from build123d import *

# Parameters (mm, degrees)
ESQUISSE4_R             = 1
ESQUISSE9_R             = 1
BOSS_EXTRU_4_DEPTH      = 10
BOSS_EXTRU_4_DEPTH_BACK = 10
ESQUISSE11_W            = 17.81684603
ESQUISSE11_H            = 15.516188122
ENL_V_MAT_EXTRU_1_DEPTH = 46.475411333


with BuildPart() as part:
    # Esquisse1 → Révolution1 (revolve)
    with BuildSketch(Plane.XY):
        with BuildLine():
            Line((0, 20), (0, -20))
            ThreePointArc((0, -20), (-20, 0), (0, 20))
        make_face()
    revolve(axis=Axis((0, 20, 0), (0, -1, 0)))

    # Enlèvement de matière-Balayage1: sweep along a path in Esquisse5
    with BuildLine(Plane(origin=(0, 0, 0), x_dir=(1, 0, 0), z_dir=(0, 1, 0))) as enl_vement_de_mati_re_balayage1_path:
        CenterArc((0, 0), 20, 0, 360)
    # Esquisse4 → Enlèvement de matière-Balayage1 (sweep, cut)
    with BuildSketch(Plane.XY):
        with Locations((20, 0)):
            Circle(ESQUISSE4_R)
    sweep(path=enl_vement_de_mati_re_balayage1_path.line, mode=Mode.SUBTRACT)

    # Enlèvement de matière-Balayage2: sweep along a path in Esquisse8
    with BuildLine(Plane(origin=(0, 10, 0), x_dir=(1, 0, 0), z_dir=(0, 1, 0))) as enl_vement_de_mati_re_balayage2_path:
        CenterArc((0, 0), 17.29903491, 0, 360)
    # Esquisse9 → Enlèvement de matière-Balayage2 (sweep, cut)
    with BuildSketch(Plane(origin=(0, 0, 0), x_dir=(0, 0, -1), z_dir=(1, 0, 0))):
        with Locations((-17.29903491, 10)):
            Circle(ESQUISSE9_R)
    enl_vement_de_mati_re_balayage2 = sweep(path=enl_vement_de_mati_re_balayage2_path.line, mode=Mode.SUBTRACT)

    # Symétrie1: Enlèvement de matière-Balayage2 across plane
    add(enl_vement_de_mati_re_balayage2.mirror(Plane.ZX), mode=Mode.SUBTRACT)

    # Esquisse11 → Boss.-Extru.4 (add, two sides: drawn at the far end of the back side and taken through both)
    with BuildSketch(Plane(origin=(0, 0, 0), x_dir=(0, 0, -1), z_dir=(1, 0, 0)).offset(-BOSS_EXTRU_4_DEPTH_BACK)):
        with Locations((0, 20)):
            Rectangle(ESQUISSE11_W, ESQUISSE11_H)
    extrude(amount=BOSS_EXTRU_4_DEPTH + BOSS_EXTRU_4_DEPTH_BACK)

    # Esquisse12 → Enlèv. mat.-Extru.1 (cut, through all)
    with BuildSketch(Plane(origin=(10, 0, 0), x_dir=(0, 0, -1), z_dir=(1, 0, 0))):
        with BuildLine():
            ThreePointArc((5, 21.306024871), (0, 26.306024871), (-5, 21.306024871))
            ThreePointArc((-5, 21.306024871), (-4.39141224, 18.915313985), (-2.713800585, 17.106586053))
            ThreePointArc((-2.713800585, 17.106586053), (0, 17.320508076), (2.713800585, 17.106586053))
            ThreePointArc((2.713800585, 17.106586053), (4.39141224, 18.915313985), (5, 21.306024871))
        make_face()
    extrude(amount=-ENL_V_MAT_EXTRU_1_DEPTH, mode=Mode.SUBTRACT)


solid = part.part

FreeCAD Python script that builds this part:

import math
import FreeCAD as App
import Part
import Sketcher

V = App.Vector

doc = App.newDocument("Part")
body = doc.addObject("PartDesign::Body", "Body")

# Sketch on XY plane
sketch1 = body.newObject("Sketcher::SketchObject", "Sketch")
sketch1.AttachmentSupport = (doc.getObject("XY_Plane"), [""])
sketch1.MapMode = "FlatFace"
sketch1.addGeometry(Part.LineSegment(V(0, -20, 0), V(0, 20, 0)), False)
sketch1.addGeometry(Part.ArcOfCircle(Part.Circle(V(0, 0, 0), V(0, 0, 1), 20), math.radians(90), math.radians(270)), False)
sketch1.addConstraint(Sketcher.Constraint("Coincident", 0, 1, 1, 2))
sketch1.addConstraint(Sketcher.Constraint("Coincident", 1, 1, 0, 2))
sketch1.addConstraint(Sketcher.Constraint("Vertical", 0))
sketch1.addConstraint(Sketcher.Constraint("Coincident", 1, 3, -1, 1))
sketch1.addConstraint(Sketcher.Constraint("PointOnObject", 0, 1, -2))
sketch1.addConstraint(Sketcher.Constraint("Radius", 1, 20.0))
revolution = body.newObject("PartDesign::Revolution", "Revolution")
revolution.Profile = sketch1
revolution.ReferenceAxis = (sketch1, ["V_Axis"])
revolution.Angle = 360

# Sketch on XY plane
sketch2 = body.newObject("Sketcher::SketchObject", "Sketch001")
sketch2.AttachmentSupport = (doc.getObject("XY_Plane"), [""])
sketch2.MapMode = "FlatFace"
sketch2.addGeometry(Part.Circle(V(20, 0, 0), V(0, 0, 1), 1), False)
sketch2.addConstraint(Sketcher.Constraint("PointOnObject", 0, 3, -1))
sketch2.addConstraint(Sketcher.Constraint("Diameter", 0, 2.0))
sketch2.addConstraint(Sketcher.Constraint("DistanceX", -1, 1, 0, 3, 20.0))

# Sketch on XZ plane
sketch3 = body.newObject("Sketcher::SketchObject", "Sketch002")
sketch3.AttachmentSupport = (doc.getObject("XZ_Plane"), [""])
sketch3.MapMode = "FlatFace"
sketch3.addGeometry(Part.Circle(V(0, 0, 0), V(0, 0, 1), 20), False)
sketch3.addConstraint(Sketcher.Constraint("Coincident", 0, 3, -1, 1))
sketch3.addConstraint(Sketcher.Constraint("Diameter", 0, 40.0))
doc.recompute()

subtractivepipe = body.newObject("PartDesign::SubtractivePipe", "SubtractivePipe")
subtractivepipe.Profile = sketch2
subtractivepipe.Spine = (sketch3, ["Edge1"])

# Sketch on YZ plane
sketch4 = body.newObject("Sketcher::SketchObject", "Sketch003")
sketch4.AttachmentSupport = (doc.getObject("YZ_Plane"), [""])
sketch4.MapMode = "FlatFace"
sketch4.addGeometry(Part.Circle(V(10, 17.299035, 0), V(0, 0, 1), 1), False)
sketch4.addConstraint(Sketcher.Constraint("Diameter", 0, 2.0))
sketch4.addConstraint(Sketcher.Constraint("DistanceX", -1, 1, 0, 3, 10.0))
sketch4.addConstraint(Sketcher.Constraint("DistanceY", -1, 1, 0, 3, 17.299035))

# Sketch on XZ plane
sketch5 = body.newObject("Sketcher::SketchObject", "Sketch004")
sketch5.AttachmentSupport = (doc.getObject("XZ_Plane"), [""])
sketch5.MapMode = "FlatFace"
sketch5.AttachmentOffset = App.Placement(V(0, 0, -10), App.Rotation())
sketch5.addGeometry(Part.Circle(V(0, 0, 0), V(0, 0, 1), 17.299035), False)
sketch5.addConstraint(Sketcher.Constraint("Coincident", 0, 3, -1, 1))
sketch5.addConstraint(Sketcher.Constraint("Diameter", 0, 34.59807))
doc.recompute()

subtractivepipe2 = body.newObject("PartDesign::SubtractivePipe", "SubtractivePipe001")
subtractivepipe2.Profile = sketch4
subtractivepipe2.Spine = (sketch5, ["Edge1"])
doc.recompute()

mirrored = body.newObject("PartDesign::Mirrored", "Mirrored")
mirrored.Originals = [subtractivepipe2]
mirrored.MirrorPlane = (doc.getObject("XZ_Plane"), [""])
body.Tip = mirrored

# Sketch on YZ plane
sketch6 = body.newObject("Sketcher::SketchObject", "Sketch005")
sketch6.AttachmentSupport = (doc.getObject("YZ_Plane"), [""])
sketch6.MapMode = "FlatFace"
sketch6.addGeometry(Part.LineSegment(V(27.758094, 8.908423, 0), V(12.241906, 8.908423, 0)), False)
sketch6.addGeometry(Part.LineSegment(V(12.241906, 8.908423, 0), V(12.241906, -8.908423, 0)), False)
sketch6.addGeometry(Part.LineSegment(V(12.241906, -8.908423, 0), V(27.758094, -8.908423, 0)), False)
sketch6.addGeometry(Part.LineSegment(V(27.758094, -8.908423, 0), V(27.758094, 8.908423, 0)), False)
sketch6.addConstraint(Sketcher.Constraint("Coincident", 0, 2, 1, 1))
sketch6.addConstraint(Sketcher.Constraint("Coincident", 1, 2, 2, 1))
sketch6.addConstraint(Sketcher.Constraint("Coincident", 2, 2, 3, 1))
sketch6.addConstraint(Sketcher.Constraint("Coincident", 3, 2, 0, 1))
sketch6.addConstraint(Sketcher.Constraint("Horizontal", 0))
sketch6.addConstraint(Sketcher.Constraint("Vertical", 1))
sketch6.addConstraint(Sketcher.Constraint("Horizontal", 2))
sketch6.addConstraint(Sketcher.Constraint("Vertical", 3))
sketch6.addConstraint(Sketcher.Constraint("DistanceX", 0, 2, 0, 1, 15.516188))
sketch6.addConstraint(Sketcher.Constraint("DistanceY", 1, 2, 1, 1, 17.816846))
sketch6.addConstraint(Sketcher.Constraint("DistanceX", -1, 1, 0, 2, 12.241906))
sketch6.addConstraint(Sketcher.Constraint("DistanceY", -1, 1, 0, 2, 8.908423))
pad1 = body.newObject("PartDesign::Pad", "Pad")
pad1.Profile = sketch6
pad1.Type = "TwoLengths"
pad1.Length = 10
pad1.Length2 = 10

# Sketch on YZ plane
sketch7 = body.newObject("Sketcher::SketchObject", "Sketch006")
sketch7.AttachmentSupport = (doc.getObject("YZ_Plane"), [""])
sketch7.MapMode = "FlatFace"
sketch7.AttachmentOffset = App.Placement(V(0, 0, 10), App.Rotation())
sketch7.addGeometry(Part.ArcOfCircle(Part.Circle(V(21.306025, 0, 0), V(0, 0, 1), 5), math.radians(-90), math.radians(90)), False)
sketch7.addGeometry(Part.ArcOfCircle(Part.Circle(V(21.306025, 0, 0), V(0, 0, 1), 5), math.radians(90), math.radians(147.12827)), False)
sketch7.addGeometry(Part.ArcOfCircle(Part.Circle(V(0, 0, 0), V(0, 0, 1), 17.320508), math.radians(-9.014322), math.radians(9.014322)), False)
sketch7.addGeometry(Part.ArcOfCircle(Part.Circle(V(21.306025, 0, 0), V(0, 0, 1), 5), math.radians(-147.12827), math.radians(-90)), False)
sketch7.addConstraint(Sketcher.Constraint("Tangent", 0, 2, 1, 1))
sketch7.addConstraint(Sketcher.Constraint("Coincident", 1, 2, 2, 2))
sketch7.addConstraint(Sketcher.Constraint("Coincident", 2, 1, 3, 1))
sketch7.addConstraint(Sketcher.Constraint("Tangent", 3, 2, 0, 1))
sketch7.addConstraint(Sketcher.Constraint("Coincident", 2, 3, -1, 1))
sketch7.addConstraint(Sketcher.Constraint("Equal", 0, 1))
sketch7.addConstraint(Sketcher.Constraint("Equal", 1, 3))
sketch7.addConstraint(Sketcher.Constraint("Symmetric", 0, 2, 3, 2, -1))
sketch7.addConstraint(Sketcher.Constraint("Vertical", 3, 3, 0, 2))
sketch7.addConstraint(Sketcher.Constraint("Radius", 0, 5.0))
sketch7.addConstraint(Sketcher.Constraint("Radius", 2, 17.320508))
sketch7.addConstraint(Sketcher.Constraint("DistanceY", -1, 1, 1, 2, 2.713801))
pocket1 = body.newObject("PartDesign::Pocket", "Pocket")
pocket1.Profile = sketch7
pocket1.Type = "ThroughAll"

doc.recompute()
